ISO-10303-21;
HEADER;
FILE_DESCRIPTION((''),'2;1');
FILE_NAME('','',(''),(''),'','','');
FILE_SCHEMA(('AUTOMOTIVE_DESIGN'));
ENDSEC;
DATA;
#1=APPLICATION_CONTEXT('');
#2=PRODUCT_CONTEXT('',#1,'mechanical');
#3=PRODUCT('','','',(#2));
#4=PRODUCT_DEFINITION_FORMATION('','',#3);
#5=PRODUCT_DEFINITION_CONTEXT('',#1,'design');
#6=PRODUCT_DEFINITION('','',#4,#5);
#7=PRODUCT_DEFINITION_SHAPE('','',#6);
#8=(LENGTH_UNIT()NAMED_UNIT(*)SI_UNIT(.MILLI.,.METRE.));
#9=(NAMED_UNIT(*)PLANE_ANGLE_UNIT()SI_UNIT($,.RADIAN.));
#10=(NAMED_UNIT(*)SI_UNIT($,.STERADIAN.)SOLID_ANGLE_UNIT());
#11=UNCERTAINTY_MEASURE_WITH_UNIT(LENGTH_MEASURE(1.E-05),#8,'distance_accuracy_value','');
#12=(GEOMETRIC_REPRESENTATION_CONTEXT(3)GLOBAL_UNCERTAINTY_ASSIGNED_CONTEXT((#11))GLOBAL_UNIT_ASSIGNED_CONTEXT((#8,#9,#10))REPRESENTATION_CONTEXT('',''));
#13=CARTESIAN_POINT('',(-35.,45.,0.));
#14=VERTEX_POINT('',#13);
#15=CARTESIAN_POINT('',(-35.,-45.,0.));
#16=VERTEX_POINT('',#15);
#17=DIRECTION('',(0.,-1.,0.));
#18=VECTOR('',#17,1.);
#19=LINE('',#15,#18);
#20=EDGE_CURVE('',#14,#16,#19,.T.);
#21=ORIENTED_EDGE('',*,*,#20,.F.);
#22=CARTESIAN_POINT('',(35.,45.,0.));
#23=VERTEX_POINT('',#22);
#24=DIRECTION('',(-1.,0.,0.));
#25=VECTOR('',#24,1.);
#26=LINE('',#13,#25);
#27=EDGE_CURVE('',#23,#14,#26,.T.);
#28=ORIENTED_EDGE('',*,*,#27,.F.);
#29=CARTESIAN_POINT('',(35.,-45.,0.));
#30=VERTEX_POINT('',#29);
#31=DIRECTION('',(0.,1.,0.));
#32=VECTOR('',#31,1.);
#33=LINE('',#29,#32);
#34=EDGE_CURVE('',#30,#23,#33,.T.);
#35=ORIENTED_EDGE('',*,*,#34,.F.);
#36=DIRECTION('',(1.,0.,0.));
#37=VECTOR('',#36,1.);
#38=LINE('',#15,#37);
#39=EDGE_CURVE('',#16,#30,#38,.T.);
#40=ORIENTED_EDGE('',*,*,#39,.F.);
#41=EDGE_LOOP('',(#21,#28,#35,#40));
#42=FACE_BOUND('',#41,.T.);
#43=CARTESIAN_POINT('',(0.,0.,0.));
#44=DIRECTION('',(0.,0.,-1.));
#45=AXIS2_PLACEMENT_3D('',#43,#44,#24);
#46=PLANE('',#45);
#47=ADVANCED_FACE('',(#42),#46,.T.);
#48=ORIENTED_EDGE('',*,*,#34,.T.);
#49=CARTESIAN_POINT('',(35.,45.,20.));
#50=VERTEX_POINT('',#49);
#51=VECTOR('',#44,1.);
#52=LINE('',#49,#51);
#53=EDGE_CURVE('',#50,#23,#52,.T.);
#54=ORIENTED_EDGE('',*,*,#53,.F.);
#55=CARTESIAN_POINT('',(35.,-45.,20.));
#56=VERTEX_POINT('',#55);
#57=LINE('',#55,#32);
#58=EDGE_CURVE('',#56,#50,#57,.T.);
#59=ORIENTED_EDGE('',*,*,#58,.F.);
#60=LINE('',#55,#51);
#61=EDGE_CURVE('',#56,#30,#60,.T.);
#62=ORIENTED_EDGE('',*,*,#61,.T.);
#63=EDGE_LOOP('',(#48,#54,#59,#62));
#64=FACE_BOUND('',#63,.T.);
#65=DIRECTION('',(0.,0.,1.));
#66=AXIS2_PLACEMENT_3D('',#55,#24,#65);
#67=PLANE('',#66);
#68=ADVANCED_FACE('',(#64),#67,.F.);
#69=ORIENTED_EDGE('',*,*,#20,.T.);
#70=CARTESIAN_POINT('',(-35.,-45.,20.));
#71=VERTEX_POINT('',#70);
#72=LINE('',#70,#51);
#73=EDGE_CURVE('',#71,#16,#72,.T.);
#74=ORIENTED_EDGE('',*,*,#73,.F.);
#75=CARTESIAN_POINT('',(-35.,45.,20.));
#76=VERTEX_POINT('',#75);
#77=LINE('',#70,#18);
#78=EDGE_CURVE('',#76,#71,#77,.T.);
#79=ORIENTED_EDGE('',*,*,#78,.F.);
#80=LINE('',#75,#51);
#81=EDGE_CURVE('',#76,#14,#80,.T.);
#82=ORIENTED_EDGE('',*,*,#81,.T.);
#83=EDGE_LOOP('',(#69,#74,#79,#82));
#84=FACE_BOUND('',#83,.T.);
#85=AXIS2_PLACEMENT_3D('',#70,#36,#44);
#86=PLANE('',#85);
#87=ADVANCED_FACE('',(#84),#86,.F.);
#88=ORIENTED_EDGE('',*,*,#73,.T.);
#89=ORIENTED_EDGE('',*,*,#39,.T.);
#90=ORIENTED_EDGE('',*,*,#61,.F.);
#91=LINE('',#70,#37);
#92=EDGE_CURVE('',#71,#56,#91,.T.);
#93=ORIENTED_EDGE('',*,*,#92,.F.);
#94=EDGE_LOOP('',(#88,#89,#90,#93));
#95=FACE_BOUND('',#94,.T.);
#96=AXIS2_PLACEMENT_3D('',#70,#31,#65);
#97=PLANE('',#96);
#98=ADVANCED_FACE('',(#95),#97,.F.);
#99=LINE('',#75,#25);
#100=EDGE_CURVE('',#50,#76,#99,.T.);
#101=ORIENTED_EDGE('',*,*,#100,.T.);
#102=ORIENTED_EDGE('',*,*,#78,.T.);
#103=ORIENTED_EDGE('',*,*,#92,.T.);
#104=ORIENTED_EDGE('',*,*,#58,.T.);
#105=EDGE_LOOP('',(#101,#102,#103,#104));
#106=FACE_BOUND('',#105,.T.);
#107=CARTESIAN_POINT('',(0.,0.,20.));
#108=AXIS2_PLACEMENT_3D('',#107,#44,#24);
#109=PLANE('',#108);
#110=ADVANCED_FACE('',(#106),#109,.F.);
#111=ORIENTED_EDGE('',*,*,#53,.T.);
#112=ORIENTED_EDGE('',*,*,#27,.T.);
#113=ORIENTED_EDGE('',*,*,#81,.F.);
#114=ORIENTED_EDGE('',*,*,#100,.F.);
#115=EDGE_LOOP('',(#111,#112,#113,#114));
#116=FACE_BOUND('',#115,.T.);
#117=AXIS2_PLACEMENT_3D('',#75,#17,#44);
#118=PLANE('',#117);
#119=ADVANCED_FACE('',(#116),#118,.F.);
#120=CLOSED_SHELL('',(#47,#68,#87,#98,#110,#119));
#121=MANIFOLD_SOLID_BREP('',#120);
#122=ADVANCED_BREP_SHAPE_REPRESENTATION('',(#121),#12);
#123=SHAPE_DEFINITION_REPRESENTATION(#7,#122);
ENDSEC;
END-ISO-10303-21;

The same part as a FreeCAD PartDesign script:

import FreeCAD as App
import Part
import Sketcher

V = App.Vector
Q = App.Units.Quantity

doc = App.newDocument("Part")
params = doc.addObject("Spreadsheet::Sheet", "Params")
for row, (alias, value) in enumerate([
    ("sketch1_width", "70 mm"),
    ("sketch1_height", "90 mm"),
    ("pad1_length", "20 mm"),
], start=1):
    params.set(f"A{row}", alias)
    params.set(f"B{row}", "=" + value)
    params.setAlias(f"B{row}", alias)

body = doc.addObject("PartDesign::Body", "Body")

# Sketch on XY plane
sketch1 = body.newObject("Sketcher::SketchObject", "Sketch")
sketch1.AttachmentSupport = (doc.getObject("XY_Plane"), [""])
sketch1.MapMode = "FlatFace"
sketch1.addGeometry([
    Part.LineSegment(V(-35, 45, 0), V(-35, -45, 0)),
    Part.LineSegment(V(-35, -45, 0), V(35, -45, 0)),
    Part.LineSegment(V(35, -45, 0), V(35, 45, 0)),
    Part.LineSegment(V(35, 45, 0), V(-35, 45, 0)),
], False)
sketch1.addConstraint([
    Sketcher.Constraint("Coincident", 0, 2, 1, 1),
    Sketcher.Constraint("Coincident", 1, 2, 2, 1),
    Sketcher.Constraint("Coincident", 2, 2, 3, 1),
    Sketcher.Constraint("Coincident", 3, 2, 0, 1),
    Sketcher.Constraint("Vertical", 0),
    Sketcher.Constraint("Horizontal", 1),
    Sketcher.Constraint("Vertical", 2),
    Sketcher.Constraint("Horizontal", 3),
    Sketcher.Constraint("Symmetric", 0, 2, 2, 2, -1, 1),
    Sketcher.Constraint("DistanceX", 1, 1, 1, 2, Q("70 mm")),
    Sketcher.Constraint("DistanceY", 0, 2, 0, 1, Q("90 mm")),
])
sketch1.setExpression("Constraints[9]", "Params.sketch1_width")
sketch1.setExpression("Constraints[10]", "Params.sketch1_height")
pad1 = body.newObject("PartDesign::Pad", "Pad")
pad1.Profile = sketch1
pad1.setExpression("Length", "Params.pad1_length")

doc.recompute()
